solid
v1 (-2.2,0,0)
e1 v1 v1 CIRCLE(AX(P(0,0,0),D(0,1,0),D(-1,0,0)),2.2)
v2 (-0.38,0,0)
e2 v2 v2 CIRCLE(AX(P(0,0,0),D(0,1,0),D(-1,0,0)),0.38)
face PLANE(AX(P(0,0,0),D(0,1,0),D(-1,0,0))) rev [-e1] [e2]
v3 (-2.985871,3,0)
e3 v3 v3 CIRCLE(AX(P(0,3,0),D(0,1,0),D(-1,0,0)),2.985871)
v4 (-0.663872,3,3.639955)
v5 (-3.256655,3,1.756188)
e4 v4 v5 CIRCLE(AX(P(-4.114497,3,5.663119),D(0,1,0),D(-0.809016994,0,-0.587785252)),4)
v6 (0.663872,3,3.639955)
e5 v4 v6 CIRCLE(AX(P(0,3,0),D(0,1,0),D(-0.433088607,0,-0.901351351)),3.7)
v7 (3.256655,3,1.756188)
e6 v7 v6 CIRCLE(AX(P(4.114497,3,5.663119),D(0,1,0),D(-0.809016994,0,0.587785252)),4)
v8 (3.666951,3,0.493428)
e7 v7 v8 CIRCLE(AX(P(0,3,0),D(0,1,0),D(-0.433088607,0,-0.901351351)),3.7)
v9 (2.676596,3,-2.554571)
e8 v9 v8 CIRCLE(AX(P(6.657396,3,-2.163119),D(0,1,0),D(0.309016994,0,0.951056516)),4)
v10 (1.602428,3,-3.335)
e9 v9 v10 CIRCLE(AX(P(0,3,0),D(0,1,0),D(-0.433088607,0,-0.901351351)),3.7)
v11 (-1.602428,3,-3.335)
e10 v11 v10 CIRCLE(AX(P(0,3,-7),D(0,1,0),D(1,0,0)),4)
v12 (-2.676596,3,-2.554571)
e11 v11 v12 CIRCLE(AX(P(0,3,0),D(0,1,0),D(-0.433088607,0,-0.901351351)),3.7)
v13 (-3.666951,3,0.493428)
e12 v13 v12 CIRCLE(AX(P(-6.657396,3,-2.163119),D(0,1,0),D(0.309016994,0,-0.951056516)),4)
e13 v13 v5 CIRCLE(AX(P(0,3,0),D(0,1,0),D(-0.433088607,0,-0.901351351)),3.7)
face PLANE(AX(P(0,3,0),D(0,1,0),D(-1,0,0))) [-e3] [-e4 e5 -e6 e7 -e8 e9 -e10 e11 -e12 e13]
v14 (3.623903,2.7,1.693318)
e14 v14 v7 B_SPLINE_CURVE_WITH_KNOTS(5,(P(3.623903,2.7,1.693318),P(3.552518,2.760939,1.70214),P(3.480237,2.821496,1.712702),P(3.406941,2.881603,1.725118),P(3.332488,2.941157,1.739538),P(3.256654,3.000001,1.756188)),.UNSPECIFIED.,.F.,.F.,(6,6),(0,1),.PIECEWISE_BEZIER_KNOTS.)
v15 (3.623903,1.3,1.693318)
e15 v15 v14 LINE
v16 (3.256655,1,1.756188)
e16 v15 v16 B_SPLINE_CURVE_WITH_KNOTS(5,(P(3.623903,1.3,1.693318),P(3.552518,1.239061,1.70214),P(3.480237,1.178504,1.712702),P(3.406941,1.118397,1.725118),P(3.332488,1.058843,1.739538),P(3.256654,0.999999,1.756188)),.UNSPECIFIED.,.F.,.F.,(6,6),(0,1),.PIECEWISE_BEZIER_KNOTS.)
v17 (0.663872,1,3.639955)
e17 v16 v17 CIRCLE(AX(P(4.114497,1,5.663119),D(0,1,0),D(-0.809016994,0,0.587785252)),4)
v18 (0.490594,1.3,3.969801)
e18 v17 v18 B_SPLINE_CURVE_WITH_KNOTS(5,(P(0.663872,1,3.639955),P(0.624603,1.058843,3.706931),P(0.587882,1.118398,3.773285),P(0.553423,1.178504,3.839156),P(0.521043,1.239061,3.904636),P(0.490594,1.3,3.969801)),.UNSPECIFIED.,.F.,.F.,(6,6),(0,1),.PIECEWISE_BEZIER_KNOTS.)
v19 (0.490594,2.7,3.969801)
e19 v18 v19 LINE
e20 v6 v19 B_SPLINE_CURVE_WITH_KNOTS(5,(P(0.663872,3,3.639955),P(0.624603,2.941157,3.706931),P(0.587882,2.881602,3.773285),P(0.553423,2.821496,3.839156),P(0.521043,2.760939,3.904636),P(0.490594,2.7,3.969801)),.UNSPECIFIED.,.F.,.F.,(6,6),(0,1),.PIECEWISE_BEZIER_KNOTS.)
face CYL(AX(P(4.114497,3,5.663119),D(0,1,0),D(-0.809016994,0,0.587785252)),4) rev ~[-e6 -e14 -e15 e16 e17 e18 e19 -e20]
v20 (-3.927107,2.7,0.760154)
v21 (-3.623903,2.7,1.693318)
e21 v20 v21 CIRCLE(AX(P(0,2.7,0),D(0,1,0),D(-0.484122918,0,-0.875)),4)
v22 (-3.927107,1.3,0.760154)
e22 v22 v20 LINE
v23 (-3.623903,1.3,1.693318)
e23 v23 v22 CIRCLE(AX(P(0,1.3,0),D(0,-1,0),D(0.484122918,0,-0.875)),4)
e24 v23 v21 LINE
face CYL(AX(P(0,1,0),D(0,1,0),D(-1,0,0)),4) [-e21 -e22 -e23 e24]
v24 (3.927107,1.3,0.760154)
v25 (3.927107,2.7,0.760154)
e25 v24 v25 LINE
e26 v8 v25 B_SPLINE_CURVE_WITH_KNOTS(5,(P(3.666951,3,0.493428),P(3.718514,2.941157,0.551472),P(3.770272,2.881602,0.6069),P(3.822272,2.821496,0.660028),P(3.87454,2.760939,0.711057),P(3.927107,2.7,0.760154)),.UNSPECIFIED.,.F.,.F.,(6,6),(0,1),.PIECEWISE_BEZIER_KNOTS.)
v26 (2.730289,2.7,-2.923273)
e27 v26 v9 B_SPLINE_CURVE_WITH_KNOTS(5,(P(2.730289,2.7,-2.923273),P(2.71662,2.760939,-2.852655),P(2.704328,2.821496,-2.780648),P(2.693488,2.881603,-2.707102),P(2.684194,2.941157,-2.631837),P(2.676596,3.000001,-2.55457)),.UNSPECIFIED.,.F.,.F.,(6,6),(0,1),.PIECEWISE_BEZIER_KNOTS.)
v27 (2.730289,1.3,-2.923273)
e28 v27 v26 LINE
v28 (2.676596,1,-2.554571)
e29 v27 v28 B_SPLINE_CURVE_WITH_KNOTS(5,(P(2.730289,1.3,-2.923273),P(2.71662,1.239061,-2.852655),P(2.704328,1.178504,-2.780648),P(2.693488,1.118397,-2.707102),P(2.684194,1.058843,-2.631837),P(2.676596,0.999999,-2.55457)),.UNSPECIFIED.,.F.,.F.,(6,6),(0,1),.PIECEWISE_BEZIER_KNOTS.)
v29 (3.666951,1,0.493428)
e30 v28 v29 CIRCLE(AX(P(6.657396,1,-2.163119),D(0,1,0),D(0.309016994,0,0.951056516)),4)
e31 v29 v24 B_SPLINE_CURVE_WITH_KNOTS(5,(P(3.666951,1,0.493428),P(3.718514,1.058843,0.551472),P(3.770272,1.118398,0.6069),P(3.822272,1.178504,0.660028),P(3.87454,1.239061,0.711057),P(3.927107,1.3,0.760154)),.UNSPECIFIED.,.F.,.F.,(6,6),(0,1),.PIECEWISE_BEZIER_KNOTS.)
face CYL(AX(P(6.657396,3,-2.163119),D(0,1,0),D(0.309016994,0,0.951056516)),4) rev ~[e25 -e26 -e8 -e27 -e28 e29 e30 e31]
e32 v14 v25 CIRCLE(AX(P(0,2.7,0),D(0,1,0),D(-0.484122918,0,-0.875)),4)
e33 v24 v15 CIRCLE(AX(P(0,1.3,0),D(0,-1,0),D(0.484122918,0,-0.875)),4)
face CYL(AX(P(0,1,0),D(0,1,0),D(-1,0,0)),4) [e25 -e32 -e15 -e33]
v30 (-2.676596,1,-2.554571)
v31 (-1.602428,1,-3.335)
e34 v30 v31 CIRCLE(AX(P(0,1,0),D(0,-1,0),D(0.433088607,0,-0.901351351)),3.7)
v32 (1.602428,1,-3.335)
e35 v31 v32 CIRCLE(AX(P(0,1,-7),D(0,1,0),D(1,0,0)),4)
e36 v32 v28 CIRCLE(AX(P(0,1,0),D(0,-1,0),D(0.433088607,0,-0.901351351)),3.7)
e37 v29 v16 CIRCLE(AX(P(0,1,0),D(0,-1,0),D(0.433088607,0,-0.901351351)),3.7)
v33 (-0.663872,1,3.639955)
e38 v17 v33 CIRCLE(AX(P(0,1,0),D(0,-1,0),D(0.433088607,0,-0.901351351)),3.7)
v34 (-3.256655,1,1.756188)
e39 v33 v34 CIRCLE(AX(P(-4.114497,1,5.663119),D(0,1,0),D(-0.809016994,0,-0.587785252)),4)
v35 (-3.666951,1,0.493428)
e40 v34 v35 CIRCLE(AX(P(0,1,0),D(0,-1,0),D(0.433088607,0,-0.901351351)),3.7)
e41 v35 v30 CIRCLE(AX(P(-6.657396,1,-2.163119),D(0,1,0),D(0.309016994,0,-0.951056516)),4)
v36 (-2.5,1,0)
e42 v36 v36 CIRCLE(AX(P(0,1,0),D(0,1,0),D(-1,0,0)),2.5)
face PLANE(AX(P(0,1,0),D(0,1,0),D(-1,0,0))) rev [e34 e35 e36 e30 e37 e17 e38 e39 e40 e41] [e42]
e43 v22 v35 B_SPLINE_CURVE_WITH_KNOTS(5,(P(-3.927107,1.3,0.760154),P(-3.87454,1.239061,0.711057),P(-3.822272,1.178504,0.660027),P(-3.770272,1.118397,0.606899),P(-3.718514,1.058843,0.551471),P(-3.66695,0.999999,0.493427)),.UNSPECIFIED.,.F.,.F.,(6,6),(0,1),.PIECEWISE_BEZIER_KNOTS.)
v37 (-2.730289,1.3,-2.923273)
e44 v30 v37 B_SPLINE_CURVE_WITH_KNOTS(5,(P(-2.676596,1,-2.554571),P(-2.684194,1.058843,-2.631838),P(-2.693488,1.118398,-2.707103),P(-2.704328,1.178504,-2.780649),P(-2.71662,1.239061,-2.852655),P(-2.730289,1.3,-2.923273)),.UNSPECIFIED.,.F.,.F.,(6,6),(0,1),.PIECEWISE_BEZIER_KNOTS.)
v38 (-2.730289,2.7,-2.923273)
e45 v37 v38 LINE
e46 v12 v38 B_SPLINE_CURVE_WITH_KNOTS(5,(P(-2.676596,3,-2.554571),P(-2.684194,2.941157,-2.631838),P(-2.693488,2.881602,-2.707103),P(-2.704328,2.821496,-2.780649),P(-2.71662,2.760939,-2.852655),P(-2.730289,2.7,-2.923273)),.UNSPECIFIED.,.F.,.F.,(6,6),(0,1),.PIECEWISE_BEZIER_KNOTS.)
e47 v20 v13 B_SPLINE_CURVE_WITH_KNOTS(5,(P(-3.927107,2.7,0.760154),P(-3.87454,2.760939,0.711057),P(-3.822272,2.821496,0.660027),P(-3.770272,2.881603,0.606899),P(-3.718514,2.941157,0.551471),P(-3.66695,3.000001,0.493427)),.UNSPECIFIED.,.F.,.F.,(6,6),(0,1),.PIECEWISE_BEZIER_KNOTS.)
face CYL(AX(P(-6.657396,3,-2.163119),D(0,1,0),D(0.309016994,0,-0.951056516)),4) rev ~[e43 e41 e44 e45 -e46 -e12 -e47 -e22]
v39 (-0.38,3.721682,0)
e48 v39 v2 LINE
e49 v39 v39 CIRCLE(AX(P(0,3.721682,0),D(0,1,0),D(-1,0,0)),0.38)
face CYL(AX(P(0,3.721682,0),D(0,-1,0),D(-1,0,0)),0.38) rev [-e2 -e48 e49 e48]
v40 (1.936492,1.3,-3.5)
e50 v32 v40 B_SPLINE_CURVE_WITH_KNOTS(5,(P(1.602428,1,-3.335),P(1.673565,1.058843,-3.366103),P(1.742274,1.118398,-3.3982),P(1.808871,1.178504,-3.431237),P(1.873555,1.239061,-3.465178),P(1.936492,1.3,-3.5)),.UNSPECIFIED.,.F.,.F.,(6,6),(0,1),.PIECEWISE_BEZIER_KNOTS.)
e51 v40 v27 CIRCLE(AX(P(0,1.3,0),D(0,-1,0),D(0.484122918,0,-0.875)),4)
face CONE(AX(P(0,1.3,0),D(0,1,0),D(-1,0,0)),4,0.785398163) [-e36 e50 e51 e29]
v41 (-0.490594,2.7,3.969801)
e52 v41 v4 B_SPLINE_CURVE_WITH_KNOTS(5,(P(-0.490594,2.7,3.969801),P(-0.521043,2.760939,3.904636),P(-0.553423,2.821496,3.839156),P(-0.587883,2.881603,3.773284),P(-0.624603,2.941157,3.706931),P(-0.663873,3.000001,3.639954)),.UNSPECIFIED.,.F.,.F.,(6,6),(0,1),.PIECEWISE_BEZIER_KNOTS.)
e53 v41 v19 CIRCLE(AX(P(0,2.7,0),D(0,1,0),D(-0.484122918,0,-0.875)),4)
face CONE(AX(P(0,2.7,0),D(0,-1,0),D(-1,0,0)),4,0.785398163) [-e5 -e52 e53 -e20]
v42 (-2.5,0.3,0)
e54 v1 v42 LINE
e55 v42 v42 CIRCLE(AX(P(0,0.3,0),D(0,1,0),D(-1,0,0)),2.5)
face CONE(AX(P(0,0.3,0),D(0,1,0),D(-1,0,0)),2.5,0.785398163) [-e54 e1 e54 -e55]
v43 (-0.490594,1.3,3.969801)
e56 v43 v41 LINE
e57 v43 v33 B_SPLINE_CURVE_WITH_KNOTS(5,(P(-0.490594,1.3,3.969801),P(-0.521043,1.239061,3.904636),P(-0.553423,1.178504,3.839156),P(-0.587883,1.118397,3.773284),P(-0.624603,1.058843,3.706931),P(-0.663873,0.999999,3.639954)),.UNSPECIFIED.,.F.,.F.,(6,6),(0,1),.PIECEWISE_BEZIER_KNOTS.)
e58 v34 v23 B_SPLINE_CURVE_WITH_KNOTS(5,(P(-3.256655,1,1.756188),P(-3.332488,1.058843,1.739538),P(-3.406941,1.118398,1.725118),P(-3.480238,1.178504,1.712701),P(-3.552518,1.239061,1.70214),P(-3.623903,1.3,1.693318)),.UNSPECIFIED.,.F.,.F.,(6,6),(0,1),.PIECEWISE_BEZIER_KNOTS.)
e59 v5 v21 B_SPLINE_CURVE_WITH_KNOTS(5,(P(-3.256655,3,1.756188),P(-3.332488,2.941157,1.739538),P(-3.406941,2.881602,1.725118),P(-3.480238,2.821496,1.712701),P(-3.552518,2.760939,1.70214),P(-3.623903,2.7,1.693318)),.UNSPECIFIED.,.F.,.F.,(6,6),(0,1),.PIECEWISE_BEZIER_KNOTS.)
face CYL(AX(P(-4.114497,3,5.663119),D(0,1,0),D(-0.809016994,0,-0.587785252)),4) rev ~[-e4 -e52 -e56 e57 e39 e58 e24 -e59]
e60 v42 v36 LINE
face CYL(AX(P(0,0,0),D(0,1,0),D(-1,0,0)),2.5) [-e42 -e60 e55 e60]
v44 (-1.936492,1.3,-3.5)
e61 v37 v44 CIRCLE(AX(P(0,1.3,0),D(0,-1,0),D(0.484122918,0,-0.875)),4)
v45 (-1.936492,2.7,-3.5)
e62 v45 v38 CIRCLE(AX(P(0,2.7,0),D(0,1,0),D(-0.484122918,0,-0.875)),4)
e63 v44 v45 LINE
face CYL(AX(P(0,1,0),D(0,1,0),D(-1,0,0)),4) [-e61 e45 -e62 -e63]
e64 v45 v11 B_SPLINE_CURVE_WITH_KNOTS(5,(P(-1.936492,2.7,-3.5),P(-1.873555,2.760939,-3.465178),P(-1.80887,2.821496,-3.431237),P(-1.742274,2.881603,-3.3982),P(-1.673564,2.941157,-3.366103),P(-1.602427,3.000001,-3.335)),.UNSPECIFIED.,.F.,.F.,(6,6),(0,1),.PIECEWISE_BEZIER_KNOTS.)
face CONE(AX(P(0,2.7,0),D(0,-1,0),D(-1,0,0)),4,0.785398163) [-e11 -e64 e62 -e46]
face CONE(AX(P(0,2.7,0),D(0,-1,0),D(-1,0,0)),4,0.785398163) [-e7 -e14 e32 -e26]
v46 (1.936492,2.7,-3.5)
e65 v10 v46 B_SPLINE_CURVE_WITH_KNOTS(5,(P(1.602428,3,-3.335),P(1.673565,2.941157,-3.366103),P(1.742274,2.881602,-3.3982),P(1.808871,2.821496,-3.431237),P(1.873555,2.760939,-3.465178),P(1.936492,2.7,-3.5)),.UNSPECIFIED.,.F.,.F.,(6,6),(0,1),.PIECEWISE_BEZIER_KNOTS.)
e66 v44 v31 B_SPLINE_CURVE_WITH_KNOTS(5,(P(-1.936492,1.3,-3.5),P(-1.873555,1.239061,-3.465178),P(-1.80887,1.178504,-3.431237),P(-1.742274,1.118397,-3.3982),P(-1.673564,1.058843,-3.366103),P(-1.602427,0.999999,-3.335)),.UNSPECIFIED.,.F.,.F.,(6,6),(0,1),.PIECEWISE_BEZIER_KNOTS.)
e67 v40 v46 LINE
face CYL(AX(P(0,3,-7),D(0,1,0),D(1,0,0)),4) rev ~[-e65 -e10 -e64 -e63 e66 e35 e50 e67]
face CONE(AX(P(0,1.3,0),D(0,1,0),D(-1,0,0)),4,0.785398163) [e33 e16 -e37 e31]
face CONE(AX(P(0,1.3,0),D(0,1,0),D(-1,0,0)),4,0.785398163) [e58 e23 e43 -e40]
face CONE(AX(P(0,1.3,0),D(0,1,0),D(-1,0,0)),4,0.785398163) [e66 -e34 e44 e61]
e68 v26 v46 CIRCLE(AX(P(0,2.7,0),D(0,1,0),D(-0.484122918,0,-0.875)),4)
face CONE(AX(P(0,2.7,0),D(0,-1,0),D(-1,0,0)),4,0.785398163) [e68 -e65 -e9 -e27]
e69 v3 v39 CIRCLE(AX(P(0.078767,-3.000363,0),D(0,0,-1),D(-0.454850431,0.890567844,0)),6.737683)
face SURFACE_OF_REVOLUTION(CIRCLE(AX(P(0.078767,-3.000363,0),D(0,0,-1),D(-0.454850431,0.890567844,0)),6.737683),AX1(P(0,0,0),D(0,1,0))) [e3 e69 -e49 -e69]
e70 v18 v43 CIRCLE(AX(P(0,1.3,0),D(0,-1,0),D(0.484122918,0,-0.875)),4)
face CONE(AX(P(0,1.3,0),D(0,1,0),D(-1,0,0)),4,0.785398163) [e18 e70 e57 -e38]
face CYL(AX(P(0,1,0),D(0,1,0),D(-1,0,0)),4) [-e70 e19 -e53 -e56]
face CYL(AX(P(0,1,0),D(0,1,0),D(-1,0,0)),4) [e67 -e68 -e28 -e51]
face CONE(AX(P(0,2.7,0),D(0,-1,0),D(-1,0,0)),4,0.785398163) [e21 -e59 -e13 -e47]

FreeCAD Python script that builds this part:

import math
import FreeCAD as App
import Part
import Sketcher


def edges_at(feature, points):
    """Names of the edges that pass closest to the given points."""
    edges = feature.Shape.Edges
    near = lambda p: min(range(len(edges)), key=lambda i: edges[i].distToShape(Part.Vertex(*p))[0])
    return sorted({f"Edge{near(p) + 1}" for p in points})

doc = App.newDocument("Part")
body = doc.addObject("PartDesign::Body", "Body")

# Sketch on XY plane
sketch1 = body.newObject("Sketcher::SketchObject", "Sketch")
sketch1.AttachmentSupport = (doc.getObject("XY_Plane"), [""])
sketch1.MapMode = "FlatFace"
sketch1.addGeometry([
    Part.LineSegment(App.Vector(-2.5, 0, 0), App.Vector(-0.4, 0, 0)),  # 0
    Part.LineSegment(App.Vector(-0.4, 0, 0), App.Vector(-0.4, 3.7, 0)),  # 1
    Part.ArcOfCircle(Part.Circle(App.Vector(0.1, -3, 0), App.Vector(0, 0, 1), 6.7), math.radians(94), math.radians(117)),  # 2
    Part.LineSegment(App.Vector(-3, 3, 0), App.Vector(-4, 3, 0)),  # 3
    Part.LineSegment(App.Vector(-4, 3, 0), App.Vector(-4, 1, 0)),  # 4
    Part.LineSegment(App.Vector(-4, 1, 0), App.Vector(-2.5, 1, 0)),  # 5
    Part.LineSegment(App.Vector(-2.5, 1, 0), App.Vector(-2.5, 0, 0)),  # 6
], False)
sketch1.addConstraint([
    Sketcher.Constraint("Coincident", 0, 2, 1, 1),
    Sketcher.Constraint("Coincident", 1, 2, 2, 1),
    Sketcher.Constraint("Coincident", 2, 2, 3, 1),
    Sketcher.Constraint("Coincident", 3, 2, 4, 1),
    Sketcher.Constraint("Coincident", 4, 2, 5, 1),
    Sketcher.Constraint("Coincident", 5, 2, 6, 1),
    Sketcher.Constraint("Coincident", 6, 2, 0, 1),
    Sketcher.Constraint("Horizontal", 0),
    Sketcher.Constraint("Vertical", 1),
    Sketcher.Constraint("Horizontal", 3),
    Sketcher.Constraint("Vertical", 4),
    Sketcher.Constraint("Horizontal", 5),
    Sketcher.Constraint("Vertical", 6),
    Sketcher.Constraint("PointOnObject", 0, 2, -1),
    Sketcher.Constraint("DistanceY", 4, 2, 4, 1, 2.0),
    Sketcher.Constraint("DistanceY", 6, 2, 6, 1, 1.0),
    Sketcher.Constraint("DistanceX", 5, 1, 5, 2, 1.5),
    Sketcher.Constraint("DistanceX", 3, 2, -1, 1, 4.0),
    Sketcher.Constraint("DistanceX", 0, 1, 0, 2, 2.12),
    Sketcher.Constraint("Radius", 2, 6.737683),
    Sketcher.Constraint("DistanceX", 3, 2, 3, 1, 1.014129),
    Sketcher.Constraint("DistanceY", 1, 1, 1, 2, 3.721682),
])
revolution = body.newObject("PartDesign::Revolution", "Revolution")
revolution.Profile = sketch1
revolution.ReferenceAxis = (sketch1, ["V_Axis"])
revolution.Angle = 360
doc.recompute()

chamfer = body.newObject("PartDesign::Chamfer", "Chamfer")
chamfer.Base = (revolution, edges_at(revolution, [(2.5, 0, 0), (4, 3, 0), (4, 1, 0)]))
chamfer.Size = 0.3

# Sketch on XZ plane
sketch2 = body.newObject("Sketcher::SketchObject", "Sketch001")
sketch2.AttachmentSupport = (doc.getObject("XZ_Plane"), [""])
sketch2.MapMode = "FlatFace"
sketch2.AttachmentOffset = App.Placement(App.Vector(0, 0, -3), App.Rotation())
sketch2.addGeometry(Part.Circle(App.Vector(0, -7, 0), App.Vector(0, 0, 1), 4), False)
sketch2.addConstraint([
    Sketcher.Constraint("PointOnObject", 0, 3, -2),
    Sketcher.Constraint("Diameter", 0, 8.0),
    Sketcher.Constraint("DistanceY", 0, 3, -1, 1, 7.0),
])
pocket1 = body.newObject("PartDesign::Pocket", "Pocket")
pocket1.Profile = sketch2
pocket1.Length = 2
pocket1.Reversed = True
doc.recompute()

polarpattern = body.newObject("PartDesign::PolarPattern", "PolarPattern")
polarpattern.Originals = [pocket1]
polarpattern.Axis = (doc.getObject("Y_Axis"), [""])
polarpattern.Angle = 360
polarpattern.Occurrences = 5
body.Tip = polarpattern

doc.recompute()
